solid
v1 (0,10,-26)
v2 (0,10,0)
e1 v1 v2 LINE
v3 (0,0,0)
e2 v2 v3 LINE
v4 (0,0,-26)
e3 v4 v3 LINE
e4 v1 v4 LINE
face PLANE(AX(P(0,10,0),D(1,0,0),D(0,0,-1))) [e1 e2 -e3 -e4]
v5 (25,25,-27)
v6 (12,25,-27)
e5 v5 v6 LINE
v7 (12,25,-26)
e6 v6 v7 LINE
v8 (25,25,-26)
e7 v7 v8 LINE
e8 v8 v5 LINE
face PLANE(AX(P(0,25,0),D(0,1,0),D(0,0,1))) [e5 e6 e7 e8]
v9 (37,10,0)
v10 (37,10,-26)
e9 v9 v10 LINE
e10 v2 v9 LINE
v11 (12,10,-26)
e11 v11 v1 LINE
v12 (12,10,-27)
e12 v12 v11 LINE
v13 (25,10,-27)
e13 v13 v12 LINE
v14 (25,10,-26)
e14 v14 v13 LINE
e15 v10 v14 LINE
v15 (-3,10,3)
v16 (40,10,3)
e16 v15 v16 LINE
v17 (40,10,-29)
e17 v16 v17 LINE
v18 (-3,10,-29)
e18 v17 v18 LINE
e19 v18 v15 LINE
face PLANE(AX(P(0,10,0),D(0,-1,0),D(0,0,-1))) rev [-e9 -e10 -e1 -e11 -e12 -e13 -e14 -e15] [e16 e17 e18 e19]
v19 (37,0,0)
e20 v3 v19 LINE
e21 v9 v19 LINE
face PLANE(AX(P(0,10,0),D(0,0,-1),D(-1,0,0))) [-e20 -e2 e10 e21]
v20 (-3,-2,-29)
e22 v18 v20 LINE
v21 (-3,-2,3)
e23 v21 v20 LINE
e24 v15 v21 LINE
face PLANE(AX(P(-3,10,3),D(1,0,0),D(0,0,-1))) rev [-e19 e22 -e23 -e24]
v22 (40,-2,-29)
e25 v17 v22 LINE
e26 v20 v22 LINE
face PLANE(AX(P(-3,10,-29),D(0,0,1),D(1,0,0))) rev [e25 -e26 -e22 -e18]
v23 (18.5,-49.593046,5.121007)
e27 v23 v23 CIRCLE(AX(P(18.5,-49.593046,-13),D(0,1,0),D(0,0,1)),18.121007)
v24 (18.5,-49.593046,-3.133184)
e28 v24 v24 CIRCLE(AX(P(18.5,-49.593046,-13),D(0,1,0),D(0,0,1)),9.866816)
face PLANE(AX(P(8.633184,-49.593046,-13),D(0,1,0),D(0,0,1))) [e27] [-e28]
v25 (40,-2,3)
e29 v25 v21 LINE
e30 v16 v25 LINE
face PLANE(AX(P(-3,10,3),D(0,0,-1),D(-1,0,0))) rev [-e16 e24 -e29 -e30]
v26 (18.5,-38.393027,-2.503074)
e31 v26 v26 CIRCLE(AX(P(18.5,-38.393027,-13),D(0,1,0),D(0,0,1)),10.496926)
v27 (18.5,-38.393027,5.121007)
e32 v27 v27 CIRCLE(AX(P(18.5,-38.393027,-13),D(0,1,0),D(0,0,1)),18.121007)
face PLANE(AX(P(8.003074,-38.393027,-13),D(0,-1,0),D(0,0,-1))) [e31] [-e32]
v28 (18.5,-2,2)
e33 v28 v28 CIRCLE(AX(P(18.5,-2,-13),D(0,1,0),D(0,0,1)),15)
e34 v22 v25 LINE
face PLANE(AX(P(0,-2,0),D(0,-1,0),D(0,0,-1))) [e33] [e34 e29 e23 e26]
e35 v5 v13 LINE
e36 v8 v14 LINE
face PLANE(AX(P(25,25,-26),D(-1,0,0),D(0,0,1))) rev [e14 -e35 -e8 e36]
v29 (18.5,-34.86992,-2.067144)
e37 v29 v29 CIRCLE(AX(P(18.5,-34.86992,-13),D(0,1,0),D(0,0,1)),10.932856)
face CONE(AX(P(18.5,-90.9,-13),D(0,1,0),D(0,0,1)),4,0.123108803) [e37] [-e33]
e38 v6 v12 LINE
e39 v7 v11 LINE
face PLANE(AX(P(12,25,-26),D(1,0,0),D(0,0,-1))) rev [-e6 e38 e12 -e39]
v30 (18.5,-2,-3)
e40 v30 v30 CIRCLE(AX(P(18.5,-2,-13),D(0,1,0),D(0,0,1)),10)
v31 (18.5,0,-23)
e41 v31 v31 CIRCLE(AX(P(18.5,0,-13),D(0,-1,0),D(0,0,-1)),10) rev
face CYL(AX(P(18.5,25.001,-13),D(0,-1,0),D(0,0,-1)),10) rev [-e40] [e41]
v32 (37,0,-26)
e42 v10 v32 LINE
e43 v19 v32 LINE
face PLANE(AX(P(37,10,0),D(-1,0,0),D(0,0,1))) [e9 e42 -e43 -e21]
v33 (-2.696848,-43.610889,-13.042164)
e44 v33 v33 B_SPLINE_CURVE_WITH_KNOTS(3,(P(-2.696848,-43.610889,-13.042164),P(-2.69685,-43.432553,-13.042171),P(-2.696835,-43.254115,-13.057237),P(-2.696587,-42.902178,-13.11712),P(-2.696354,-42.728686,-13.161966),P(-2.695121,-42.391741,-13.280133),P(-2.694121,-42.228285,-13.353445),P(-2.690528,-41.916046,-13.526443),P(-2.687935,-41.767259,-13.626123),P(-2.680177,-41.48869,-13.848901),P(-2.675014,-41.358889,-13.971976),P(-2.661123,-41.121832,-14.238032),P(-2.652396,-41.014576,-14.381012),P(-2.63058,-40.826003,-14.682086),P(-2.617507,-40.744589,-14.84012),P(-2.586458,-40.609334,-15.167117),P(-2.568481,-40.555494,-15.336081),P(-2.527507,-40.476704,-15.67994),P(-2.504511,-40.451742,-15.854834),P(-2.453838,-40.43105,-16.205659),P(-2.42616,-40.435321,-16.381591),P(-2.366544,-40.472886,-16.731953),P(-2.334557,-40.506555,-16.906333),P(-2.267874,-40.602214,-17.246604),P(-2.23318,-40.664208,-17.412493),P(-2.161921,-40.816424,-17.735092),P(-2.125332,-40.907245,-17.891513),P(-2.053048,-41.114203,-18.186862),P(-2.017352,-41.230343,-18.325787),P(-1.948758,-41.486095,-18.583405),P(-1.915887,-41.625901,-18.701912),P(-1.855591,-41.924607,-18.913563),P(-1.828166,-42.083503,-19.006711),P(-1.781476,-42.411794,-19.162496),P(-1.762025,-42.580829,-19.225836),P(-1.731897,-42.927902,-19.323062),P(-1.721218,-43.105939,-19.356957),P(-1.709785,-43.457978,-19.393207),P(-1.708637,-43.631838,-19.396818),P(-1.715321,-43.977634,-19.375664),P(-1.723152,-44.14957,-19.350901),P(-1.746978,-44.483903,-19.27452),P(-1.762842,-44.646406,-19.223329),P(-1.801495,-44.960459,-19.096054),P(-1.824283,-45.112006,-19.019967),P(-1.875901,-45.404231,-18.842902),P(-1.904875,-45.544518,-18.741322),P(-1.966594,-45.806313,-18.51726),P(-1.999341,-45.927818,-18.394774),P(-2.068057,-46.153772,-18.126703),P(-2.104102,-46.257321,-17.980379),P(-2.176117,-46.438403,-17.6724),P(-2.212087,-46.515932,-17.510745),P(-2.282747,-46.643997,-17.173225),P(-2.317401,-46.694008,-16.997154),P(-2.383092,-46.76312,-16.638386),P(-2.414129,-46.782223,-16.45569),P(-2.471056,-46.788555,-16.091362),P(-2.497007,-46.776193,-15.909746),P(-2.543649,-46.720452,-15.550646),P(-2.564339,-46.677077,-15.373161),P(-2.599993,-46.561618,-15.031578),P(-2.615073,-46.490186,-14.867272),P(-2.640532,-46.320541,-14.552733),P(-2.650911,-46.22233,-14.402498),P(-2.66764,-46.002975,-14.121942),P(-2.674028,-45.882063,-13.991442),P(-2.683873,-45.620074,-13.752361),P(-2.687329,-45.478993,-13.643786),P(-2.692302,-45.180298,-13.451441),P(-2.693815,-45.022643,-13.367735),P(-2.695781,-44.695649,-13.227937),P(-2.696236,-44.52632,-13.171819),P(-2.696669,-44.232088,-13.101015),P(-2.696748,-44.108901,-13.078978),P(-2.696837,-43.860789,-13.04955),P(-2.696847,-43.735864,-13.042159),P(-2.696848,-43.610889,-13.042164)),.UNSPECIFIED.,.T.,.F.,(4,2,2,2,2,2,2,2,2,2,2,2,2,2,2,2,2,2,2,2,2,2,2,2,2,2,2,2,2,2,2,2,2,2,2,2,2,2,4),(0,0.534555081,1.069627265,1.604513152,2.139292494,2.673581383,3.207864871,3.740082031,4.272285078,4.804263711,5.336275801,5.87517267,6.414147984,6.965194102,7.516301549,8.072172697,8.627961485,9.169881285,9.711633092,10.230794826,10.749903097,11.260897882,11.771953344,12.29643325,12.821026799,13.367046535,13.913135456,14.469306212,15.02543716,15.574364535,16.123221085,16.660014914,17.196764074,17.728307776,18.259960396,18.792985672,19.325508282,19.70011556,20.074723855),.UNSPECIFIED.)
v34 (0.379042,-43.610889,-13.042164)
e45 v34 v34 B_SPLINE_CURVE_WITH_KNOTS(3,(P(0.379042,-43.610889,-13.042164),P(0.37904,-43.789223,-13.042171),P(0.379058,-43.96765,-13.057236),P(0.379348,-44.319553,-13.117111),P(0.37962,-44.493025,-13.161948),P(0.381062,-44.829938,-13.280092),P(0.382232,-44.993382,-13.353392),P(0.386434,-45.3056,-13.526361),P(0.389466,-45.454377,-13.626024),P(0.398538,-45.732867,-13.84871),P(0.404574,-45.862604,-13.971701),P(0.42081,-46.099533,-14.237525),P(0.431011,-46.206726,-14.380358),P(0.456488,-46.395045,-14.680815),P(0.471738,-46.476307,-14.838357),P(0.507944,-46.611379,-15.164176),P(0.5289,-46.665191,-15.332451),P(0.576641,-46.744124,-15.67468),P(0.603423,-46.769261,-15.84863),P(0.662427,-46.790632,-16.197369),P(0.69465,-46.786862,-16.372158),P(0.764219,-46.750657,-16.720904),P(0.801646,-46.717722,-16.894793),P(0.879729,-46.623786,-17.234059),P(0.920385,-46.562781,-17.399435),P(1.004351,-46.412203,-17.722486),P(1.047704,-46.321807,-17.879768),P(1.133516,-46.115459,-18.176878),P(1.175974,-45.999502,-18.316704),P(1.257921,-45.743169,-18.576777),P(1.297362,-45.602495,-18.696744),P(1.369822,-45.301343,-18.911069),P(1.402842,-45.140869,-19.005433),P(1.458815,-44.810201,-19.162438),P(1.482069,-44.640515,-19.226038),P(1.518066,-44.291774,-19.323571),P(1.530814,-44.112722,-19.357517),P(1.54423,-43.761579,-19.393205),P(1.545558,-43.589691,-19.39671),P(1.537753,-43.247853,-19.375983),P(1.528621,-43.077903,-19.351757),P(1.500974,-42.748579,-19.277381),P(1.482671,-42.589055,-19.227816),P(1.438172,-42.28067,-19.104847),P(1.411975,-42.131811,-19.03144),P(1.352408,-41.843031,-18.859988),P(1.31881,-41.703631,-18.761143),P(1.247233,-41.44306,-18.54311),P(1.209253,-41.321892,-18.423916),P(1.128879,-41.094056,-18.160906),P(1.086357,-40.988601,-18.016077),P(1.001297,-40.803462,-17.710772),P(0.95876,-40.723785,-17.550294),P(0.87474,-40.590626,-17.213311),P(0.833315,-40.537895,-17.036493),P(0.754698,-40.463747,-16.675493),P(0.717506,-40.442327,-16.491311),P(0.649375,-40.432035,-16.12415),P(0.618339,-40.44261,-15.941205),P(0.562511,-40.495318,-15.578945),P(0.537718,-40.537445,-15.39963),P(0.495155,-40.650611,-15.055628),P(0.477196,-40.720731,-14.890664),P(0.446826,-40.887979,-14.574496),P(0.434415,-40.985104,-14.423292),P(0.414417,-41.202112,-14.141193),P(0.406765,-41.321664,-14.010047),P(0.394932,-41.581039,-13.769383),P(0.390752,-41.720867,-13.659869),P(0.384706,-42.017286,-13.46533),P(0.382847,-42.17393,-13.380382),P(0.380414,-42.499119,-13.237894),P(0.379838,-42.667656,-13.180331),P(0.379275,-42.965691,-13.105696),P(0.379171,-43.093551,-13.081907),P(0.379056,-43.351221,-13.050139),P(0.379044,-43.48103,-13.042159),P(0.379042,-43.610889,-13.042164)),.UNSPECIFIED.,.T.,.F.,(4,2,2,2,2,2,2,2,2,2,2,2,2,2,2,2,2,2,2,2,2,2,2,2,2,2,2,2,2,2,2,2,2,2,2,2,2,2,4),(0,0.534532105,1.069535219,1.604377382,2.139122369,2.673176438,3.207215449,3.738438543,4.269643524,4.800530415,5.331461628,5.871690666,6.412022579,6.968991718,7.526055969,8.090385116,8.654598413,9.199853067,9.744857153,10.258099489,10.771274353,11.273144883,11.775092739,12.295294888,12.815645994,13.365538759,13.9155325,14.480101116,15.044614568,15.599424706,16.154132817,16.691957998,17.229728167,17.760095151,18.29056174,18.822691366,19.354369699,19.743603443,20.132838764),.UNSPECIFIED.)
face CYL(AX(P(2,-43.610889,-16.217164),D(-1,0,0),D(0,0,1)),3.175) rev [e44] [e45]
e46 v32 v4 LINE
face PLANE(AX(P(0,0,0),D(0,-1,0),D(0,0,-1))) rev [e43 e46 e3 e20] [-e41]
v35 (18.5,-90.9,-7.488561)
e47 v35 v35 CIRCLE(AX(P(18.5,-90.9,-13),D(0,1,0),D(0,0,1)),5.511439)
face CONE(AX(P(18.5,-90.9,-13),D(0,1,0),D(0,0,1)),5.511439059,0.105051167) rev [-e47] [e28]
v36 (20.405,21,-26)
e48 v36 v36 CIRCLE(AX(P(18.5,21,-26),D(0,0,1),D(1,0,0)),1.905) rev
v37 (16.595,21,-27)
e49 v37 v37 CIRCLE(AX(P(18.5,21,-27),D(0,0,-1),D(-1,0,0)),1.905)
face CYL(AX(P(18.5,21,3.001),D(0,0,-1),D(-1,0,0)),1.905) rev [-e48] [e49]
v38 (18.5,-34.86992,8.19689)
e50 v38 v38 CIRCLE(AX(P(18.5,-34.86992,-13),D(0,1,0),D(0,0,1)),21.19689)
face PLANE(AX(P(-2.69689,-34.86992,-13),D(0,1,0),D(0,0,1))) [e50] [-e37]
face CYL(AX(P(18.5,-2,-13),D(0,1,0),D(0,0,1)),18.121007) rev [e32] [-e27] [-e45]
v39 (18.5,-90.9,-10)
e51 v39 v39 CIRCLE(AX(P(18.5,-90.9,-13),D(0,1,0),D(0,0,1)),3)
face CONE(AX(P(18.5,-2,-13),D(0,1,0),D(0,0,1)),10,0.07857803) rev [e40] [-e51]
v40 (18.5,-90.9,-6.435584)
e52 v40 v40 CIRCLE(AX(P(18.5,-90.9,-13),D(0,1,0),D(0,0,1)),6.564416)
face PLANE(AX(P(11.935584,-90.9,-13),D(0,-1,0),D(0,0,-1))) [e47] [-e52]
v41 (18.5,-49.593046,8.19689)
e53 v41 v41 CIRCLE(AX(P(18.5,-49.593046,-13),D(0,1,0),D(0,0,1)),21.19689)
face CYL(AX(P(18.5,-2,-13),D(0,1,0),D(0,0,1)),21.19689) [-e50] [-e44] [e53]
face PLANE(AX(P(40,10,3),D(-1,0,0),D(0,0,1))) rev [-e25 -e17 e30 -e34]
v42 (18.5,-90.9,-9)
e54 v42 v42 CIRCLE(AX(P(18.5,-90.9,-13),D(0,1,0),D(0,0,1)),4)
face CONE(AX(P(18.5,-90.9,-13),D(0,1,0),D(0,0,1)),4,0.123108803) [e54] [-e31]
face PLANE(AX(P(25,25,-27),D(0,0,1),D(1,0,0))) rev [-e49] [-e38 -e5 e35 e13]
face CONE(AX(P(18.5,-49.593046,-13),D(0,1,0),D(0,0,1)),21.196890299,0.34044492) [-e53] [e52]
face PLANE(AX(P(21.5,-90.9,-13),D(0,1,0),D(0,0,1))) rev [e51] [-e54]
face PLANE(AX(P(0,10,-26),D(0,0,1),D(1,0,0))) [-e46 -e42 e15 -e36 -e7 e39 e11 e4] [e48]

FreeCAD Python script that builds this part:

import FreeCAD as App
import Part
import Sketcher
Q = App.Units.Quantity


def add_polygon(sketch, points):
    """Adds a closed chain of lines whose ends are joined by coincident constraints."""
    first, n = sketch.GeometryCount, len(points)
    for a, b in zip(points, points[1:] + points[:1]):
        sketch.addGeometry(Part.LineSegment(App.Vector(*a, 0), App.Vector(*b, 0)), False)
    for i in range(n):
        sketch.addConstraint(Sketcher.Constraint("Coincident", first + i, 2, first + (i + 1) % n, 1))

doc = App.newDocument("Part")
body = doc.addObject("PartDesign::Body", "Body")

# Sketch on XZ plane
sketch1 = doc.addObject("Sketcher::SketchObject", "Sketch")
body.addObject(sketch1)
sketch1.AttachmentSupport = (doc.XZ_Plane, [""])
sketch1.MapMode = "FlatFace"
add_polygon(sketch1, [(-3, -29), (-3, 3), (40, 3), (40, -29)])  # lines 0-3
add_polygon(sketch1, [(37, 0), (0, 0), (0, -26), (37, -26)])  # lines 4-7
sketch1.addConstraint([
    Sketcher.Constraint("Vertical", 0),
    Sketcher.Constraint("Horizontal", 1),
    Sketcher.Constraint("Vertical", 2),
    Sketcher.Constraint("Horizontal", 3),
    Sketcher.Constraint("Horizontal", 4),
    Sketcher.Constraint("Vertical", 5),
    Sketcher.Constraint("Horizontal", 6),
    Sketcher.Constraint("Vertical", 7),
    Sketcher.Constraint("Coincident", 4, 2, -1, 1),
    Sketcher.Constraint("DistanceX", 1, 1, 1, 2, Q("43 mm")),
    Sketcher.Constraint("DistanceX", 4, 2, 4, 1, Q("37 mm")),
    Sketcher.Constraint("DistanceY", 0, 1, 0, 2, Q("32 mm")),
    Sketcher.Constraint("DistanceY", 5, 2, 5, 1, Q("26 mm")),
    Sketcher.Constraint("DistanceX", 0, 2, -1, 1, Q("3 mm")),
    Sketcher.Constraint("DistanceY", -1, 1, 0, 2, Q("3 mm")),
])
pad1 = doc.addObject("PartDesign::Pad", "Pad")
body.addObject(pad1)
pad1.Profile = sketch1
pad1.Length = 10
pad1.Reversed = True

# Sketch on XZ plane
sketch2 = doc.addObject("Sketcher::SketchObject", "Sketch001")
body.addObject(sketch2)
sketch2.AttachmentSupport = (doc.XZ_Plane, [""])
sketch2.MapMode = "FlatFace"
sketch2.AttachmentOffset = App.Placement(App.Vector(0, 0, -10), App.Rotation())
add_polygon(sketch2, [(12, -27), (12, -26), (25, -26), (25, -27)])  # lines 0-3
sketch2.addConstraint([
    Sketcher.Constraint("Vertical", 0),
    Sketcher.Constraint("Horizontal", 1),
    Sketcher.Constraint("Vertical", 2),
    Sketcher.Constraint("Horizontal", 3),
    Sketcher.Constraint("DistanceX", 1, 1, 1, 2, Q("13 mm")),
    Sketcher.Constraint("DistanceY", 0, 1, 0, 2, Q("1 mm")),
    Sketcher.Constraint("DistanceX", -1, 1, 0, 2, Q("12 mm")),
    Sketcher.Constraint("DistanceY", 0, 2, -1, 1, Q("26 mm")),
])
pad2 = doc.addObject("PartDesign::Pad", "Pad001")
body.addObject(pad2)
pad2.Profile = sketch2
pad2.Length = 15
pad2.Reversed = True

# Sketch on XY plane
sketch3 = doc.addObject("Sketcher::SketchObject", "Sketch002")
body.addObject(sketch3)
sketch3.AttachmentSupport = (doc.XY_Plane, [""])
sketch3.MapMode = "FlatFace"
sketch3.AttachmentOffset = App.Placement(App.Vector(0, 0, -27), App.Rotation())
sketch3.addGeometry(Part.Circle(App.Vector(18.5, 21, 0), App.Vector(0, 0, 1), 1.905), False)
sketch3.addConstraint([
    Sketcher.Constraint("Diameter", 0, Q("3.81 mm")),
    Sketcher.Constraint("DistanceY", -1, 1, 0, 3, Q("21 mm")),
    Sketcher.Constraint("DistanceX", -1, 1, 0, 3, Q("18.5 mm")),
])
pocket1 = doc.addObject("PartDesign::Pocket", "Pocket")
body.addObject(pocket1)
pocket1.Profile = sketch3
pocket1.Type = "UpToFirst"
pocket1.Reversed = True

# Sketch on XZ plane
sketch4 = doc.addObject("Sketcher::SketchObject", "Sketch003")
body.addObject(sketch4)
sketch4.AttachmentSupport = (doc.XZ_Plane, [""])
sketch4.MapMode = "FlatFace"
add_polygon(sketch4, [(-3, 3), (-3, -29), (40, -29), (40, 3)])  # lines 0-3
sketch4.addConstraint([
    Sketcher.Constraint("Vertical", 0),
    Sketcher.Constraint("Horizontal", 1),
    Sketcher.Constraint("Vertical", 2),
    Sketcher.Constraint("Horizontal", 3),
    Sketcher.Constraint("DistanceX", 1, 1, 1, 2, Q("43 mm")),
    Sketcher.Constraint("DistanceY", 0, 2, 0, 1, Q("32 mm")),
    Sketcher.Constraint("DistanceX", 0, 2, -1, 1, Q("3 mm")),
    Sketcher.Constraint("DistanceY", 0, 2, -1, 1, Q("29 mm")),
])
pad3 = doc.addObject("PartDesign::Pad", "Pad002")
body.addObject(pad3)
pad3.Profile = sketch4
pad3.Length = 2

# Sketch on XZ plane
sketch5 = doc.addObject("Sketcher::SketchObject", "Sketch004")
body.addObject(sketch5)
sketch5.AttachmentSupport = (doc.XZ_Plane, [""])
sketch5.MapMode = "FlatFace"
sketch5.AttachmentOffset = App.Placement(App.Vector(0, 0, 2), App.Rotation())
sketch5.addGeometry(Part.Circle(App.Vector(18.5, -13, 0), App.Vector(0, 0, 1), 10), False)
sketch5.addConstraint([
    Sketcher.Constraint("Diameter", 0, Q("20 mm")),
    Sketcher.Constraint("DistanceY", 0, 3, -1, 1, Q("13 mm")),
    Sketcher.Constraint("DistanceX", -1, 1, 0, 3, Q("18.5 mm")),
])
pocket2 = doc.addObject("PartDesign::Pocket", "Pocket001")
body.addObject(pocket2)
pocket2.Profile = sketch5
pocket2.Type = "UpToFirst"

# Sketch on XY plane
sketch6 = doc.addObject("Sketcher::SketchObject", "Sketch005")
body.addObject(sketch6)
sketch6.AttachmentSupport = (doc.XY_Plane, [""])
sketch6.MapMode = "FlatFace"
sketch6.AttachmentOffset = App.Placement(App.Vector(0, 0, -13), App.Rotation())
add_polygon(sketch6, [(28.5, -2), (21.5, -90.9), (22.5, -90.9), (33.5, -2)])  # lines 0-3
sketch6.addGeometry(Part.LineSegment(App.Vector(18.5, -2, 0), App.Vector(18.5, -90.9, 0)), True)  # axis
sketch6.addConstraint([
    Sketcher.Constraint("Horizontal", 1),
    Sketcher.Constraint("Horizontal", 3),
    Sketcher.Constraint("Vertical", 4),
    Sketcher.Constraint("Horizontal", 3, 2, 4, 1),
    Sketcher.Constraint("Horizontal", 1, 2, 4, 2),
    Sketcher.Constraint("DistanceX", 1, 1, 1, 2, Q("1 mm")),
    Sketcher.Constraint("DistanceX", 3, 2, 3, 1, Q("5 mm")),
    Sketcher.Constraint("DistanceY", 4, 2, 4, 1, Q("88.9 mm")),
    Sketcher.Constraint("DistanceY", 2, 2, -1, 1, Q("2 mm")),
    Sketcher.Constraint("DistanceX", 1, 2, 2, 2, Q("11 mm")),
    Sketcher.Constraint("DistanceX", 4, 1, 3, 2, Q("10 mm")),
    Sketcher.Constraint("DistanceX", -1, 1, 0, 2, Q("21.5 mm")),
])
revolution = doc.addObject("PartDesign::Revolution", "Revolution")
body.addObject(revolution)
revolution.Profile = sketch6
revolution.ReferenceAxis = (sketch6, ["Axis0"])
revolution.Angle = 360

# Sketch on XY plane
sketch7 = doc.addObject("Sketcher::SketchObject", "Sketch006")
body.addObject(sketch7)
sketch7.AttachmentSupport = (doc.XY_Plane, [""])
sketch7.MapMode = "FlatFace"
sketch7.AttachmentOffset = App.Placement(App.Vector(0, 0, -13), App.Rotation())
add_polygon(sketch7, [(12.988561, -90.9), (8.633184, -49.593046), (0.378993, -49.593046), (0.378993, -38.393027), (8.003074, -38.393027), (7.567144, -34.86992), (-2.69689, -34.86992), (-2.69689, -49.593046), (11.935584, -90.9)])  # lines 0-8
sketch7.addGeometry(Part.LineSegment(App.Vector(18.5, -34.86992, 0), App.Vector(18.5, -90.9, 0)), True)  # axis
sketch7.addConstraint([
    Sketcher.Constraint("Horizontal", 1),
    Sketcher.Constraint("Vertical", 2),
    Sketcher.Constraint("Horizontal", 3),
    Sketcher.Constraint("Horizontal", 5),
    Sketcher.Constraint("Vertical", 6),
    Sketcher.Constraint("Horizontal", 8),
    Sketcher.Constraint("Vertical", 9),
    Sketcher.Constraint("Horizontal", 1, 2, 6, 2),
    Sketcher.Constraint("Horizontal", 5, 2, 9, 1),
    Sketcher.Constraint("Horizontal", 8, 2, 9, 2),
    Sketcher.Constraint("DistanceY", 7, 2, -1, 1, Q("90.9 mm")),
    Sketcher.Constraint("DistanceX", -1, 1, 9, 1, Q("18.5 mm")),
    Sketcher.Constraint("DistanceX", 1, 2, 1, 1, Q("8.25419 mm")),
    Sketcher.Constraint("DistanceX", 3, 1, 3, 2, Q("7.624081 mm")),
    Sketcher.Constraint("DistanceY", 2, 1, 2, 2, Q("11.200019 mm")),
    Sketcher.Constraint("DistanceY", 9, 2, 9, 1, Q("56.03008 mm")),
    Sketcher.Constraint("DistanceX", 0, 2, 7, 2, Q("3.3024 mm")),
    Sketcher.Constraint("Distance", 7, Q("43.822069 mm")),
    Sketcher.Constraint("DistanceX", 5, 2, 5, 1, Q("10.264034 mm")),
    Sketcher.Constraint("DistanceX", 8, 1, 8, 2, Q("1.052977 mm")),
    Sketcher.Constraint("DistanceY", 6, 2, 6, 1, Q("14.723126 mm")),
    Sketcher.Constraint("DistanceX", 5, 2, -1, 1, Q("2.69689 mm")),
])
revolution2 = doc.addObject("PartDesign::Revolution", "Revolution001")
body.addObject(revolution2)
revolution2.Profile = sketch7
revolution2.ReferenceAxis = (sketch7, ["Axis0"])
revolution2.Angle = 360

# Sketch on YZ plane
sketch8 = doc.addObject("Sketcher::SketchObject", "Sketch007")
body.addObject(sketch8)
sketch8.AttachmentSupport = (doc.YZ_Plane, [""])
sketch8.MapMode = "FlatFace"
sketch8.AttachmentOffset = App.Placement(App.Vector(0, 0, -13), App.Rotation())
sketch8.addGeometry(Part.Circle(App.Vector(-43.610889, -16.217164, 0), App.Vector(0, 0, 1), 3.175), False)
sketch8.addConstraint([
    Sketcher.Constraint("Diameter", 0, Q("6.35 mm")),
    Sketcher.Constraint("DistanceX", 0, 3, -1, 1, Q("43.610889 mm")),
    Sketcher.Constraint("DistanceY", 0, 3, -1, 1, Q("16.217164 mm")),
])
pocket3 = doc.addObject("PartDesign::Pocket", "Pocket002")
body.addObject(pocket3)
pocket3.Profile = sketch8
pocket3.Length = 15
pocket3.Reversed = True

doc.recompute()
